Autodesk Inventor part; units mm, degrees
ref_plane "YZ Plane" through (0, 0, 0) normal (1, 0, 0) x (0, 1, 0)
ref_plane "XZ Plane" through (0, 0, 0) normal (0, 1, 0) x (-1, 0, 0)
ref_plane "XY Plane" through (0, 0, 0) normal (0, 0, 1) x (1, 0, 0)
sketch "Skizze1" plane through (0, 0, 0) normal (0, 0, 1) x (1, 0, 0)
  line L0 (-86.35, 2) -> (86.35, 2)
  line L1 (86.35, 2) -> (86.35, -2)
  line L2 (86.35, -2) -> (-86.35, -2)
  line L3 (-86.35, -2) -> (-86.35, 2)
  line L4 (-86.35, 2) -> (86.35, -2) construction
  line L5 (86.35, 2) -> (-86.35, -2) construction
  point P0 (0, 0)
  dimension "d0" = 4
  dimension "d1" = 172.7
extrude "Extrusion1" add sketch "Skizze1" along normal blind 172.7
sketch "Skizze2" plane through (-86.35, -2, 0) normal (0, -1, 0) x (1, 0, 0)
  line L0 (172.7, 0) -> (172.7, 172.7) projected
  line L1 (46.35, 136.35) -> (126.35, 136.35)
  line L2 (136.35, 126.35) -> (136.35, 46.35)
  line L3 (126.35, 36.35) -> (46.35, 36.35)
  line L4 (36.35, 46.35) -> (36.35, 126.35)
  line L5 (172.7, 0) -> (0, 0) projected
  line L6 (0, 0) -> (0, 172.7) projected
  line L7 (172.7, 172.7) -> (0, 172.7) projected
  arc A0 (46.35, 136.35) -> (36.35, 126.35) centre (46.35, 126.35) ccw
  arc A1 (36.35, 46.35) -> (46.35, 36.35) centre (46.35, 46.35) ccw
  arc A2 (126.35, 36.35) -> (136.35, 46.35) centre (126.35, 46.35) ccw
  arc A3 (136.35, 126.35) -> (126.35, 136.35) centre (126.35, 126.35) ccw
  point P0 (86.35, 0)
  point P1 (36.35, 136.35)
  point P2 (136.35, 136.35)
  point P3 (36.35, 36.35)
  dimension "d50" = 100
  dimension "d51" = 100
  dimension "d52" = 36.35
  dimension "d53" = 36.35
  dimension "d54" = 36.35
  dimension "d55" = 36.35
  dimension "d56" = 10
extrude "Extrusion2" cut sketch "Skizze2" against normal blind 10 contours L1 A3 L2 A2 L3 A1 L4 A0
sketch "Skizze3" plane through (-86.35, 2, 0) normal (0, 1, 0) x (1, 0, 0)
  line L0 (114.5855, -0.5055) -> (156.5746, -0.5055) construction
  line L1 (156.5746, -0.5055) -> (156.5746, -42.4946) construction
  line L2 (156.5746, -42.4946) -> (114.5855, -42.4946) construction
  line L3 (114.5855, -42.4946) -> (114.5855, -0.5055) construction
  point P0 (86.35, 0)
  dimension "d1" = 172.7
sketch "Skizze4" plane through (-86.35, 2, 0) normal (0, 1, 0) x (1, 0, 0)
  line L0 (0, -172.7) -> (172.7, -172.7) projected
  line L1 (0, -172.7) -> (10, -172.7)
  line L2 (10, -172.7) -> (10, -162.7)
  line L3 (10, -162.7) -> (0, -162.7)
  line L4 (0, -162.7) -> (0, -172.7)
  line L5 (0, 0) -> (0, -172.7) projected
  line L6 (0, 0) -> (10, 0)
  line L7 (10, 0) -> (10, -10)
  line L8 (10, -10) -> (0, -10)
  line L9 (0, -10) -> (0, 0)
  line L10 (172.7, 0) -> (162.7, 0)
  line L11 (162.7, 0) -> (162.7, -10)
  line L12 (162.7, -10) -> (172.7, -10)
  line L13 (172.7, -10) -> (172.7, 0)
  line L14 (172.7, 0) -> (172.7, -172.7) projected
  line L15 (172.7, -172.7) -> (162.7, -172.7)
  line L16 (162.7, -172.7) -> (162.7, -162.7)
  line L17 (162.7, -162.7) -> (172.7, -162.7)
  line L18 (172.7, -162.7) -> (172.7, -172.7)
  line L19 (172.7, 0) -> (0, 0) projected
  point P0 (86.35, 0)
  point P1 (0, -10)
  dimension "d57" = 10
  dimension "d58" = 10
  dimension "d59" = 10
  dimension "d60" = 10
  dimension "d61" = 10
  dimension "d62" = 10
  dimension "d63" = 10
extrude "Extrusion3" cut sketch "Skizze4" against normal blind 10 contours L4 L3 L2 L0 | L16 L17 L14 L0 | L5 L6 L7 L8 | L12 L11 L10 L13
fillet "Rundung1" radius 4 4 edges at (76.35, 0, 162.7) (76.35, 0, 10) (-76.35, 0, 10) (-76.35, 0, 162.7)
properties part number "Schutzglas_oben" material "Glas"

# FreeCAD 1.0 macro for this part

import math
import FreeCAD as App
import Part
import Sketcher


def edges_at(feature, points):
    """Names of the edges that pass closest to the given points."""
    edges = feature.Shape.Edges
    near = lambda p: min(range(len(edges)), key=lambda i: edges[i].distToShape(Part.Vertex(*p))[0])
    return sorted({f"Edge{near(p) + 1}" for p in points})

doc = App.newDocument("Part")
body = doc.addObject("PartDesign::Body", "Body")

sketch1 = doc.addObject("Sketcher::SketchObject", "Sketch")
body.addObject(sketch1)
sketch1.AttachmentSupport = (doc.XY_Plane, [""])
sketch1.MapMode = "FlatFace"
sketch1.addGeometry([
    Part.LineSegment(App.Vector(86.35, 2, 0), App.Vector(-86.35, 2, 0)),
    Part.LineSegment(App.Vector(-86.35, 2, 0), App.Vector(-86.35, -2, 0)),
    Part.LineSegment(App.Vector(-86.35, -2, 0), App.Vector(86.35, -2, 0)),
    Part.LineSegment(App.Vector(86.35, -2, 0), App.Vector(86.35, 2, 0)),
], False)
sketch1.addConstraint([
    Sketcher.Constraint("Coincident", 0, 2, 1, 1),
    Sketcher.Constraint("Coincident", 1, 2, 2, 1),
    Sketcher.Constraint("Coincident", 2, 2, 3, 1),
    Sketcher.Constraint("Coincident", 3, 2, 0, 1),
    Sketcher.Constraint("Horizontal", 0),
    Sketcher.Constraint("Vertical", 1),
    Sketcher.Constraint("Horizontal", 2),
    Sketcher.Constraint("Vertical", 3),
    Sketcher.Constraint("Symmetric", 0, 2, 2, 2, -1, 1),
    Sketcher.Constraint("DistanceY", 1, 2, 1, 1, 4.0),
    Sketcher.Constraint("DistanceX", 0, 2, 0, 1, 172.7),
])
pad1 = doc.addObject("PartDesign::Pad", "Pad")
body.addObject(pad1)
pad1.Profile = sketch1
pad1.Length = 172.7

sketch2 = doc.addObject("Sketcher::SketchObject", "Sketch001")
body.addObject(sketch2)
sketch2.AttachmentSupport = (doc.XZ_Plane, [""])
sketch2.MapMode = "FlatFace"
sketch2.AttachmentOffset = App.Placement(App.Vector(0, 0, 2), App.Rotation())
sketch2.addGeometry([
    Part.LineSegment(App.Vector(40, 136.35, 0), App.Vector(-40, 136.35, 0)),
    Part.ArcOfCircle(Part.Circle(App.Vector(-40, 126.35, 0), App.Vector(0, 0, 1), 10), math.radians(90), math.radians(180)),
    Part.LineSegment(App.Vector(-50, 126.35, 0), App.Vector(-50, 46.35, 0)),
    Part.ArcOfCircle(Part.Circle(App.Vector(-40, 46.35, 0), App.Vector(0, 0, 1), 10), math.radians(180), math.radians(270)),
    Part.LineSegment(App.Vector(-40, 36.35, 0), App.Vector(40, 36.35, 0)),
    Part.ArcOfCircle(Part.Circle(App.Vector(40, 46.35, 0), App.Vector(0, 0, 1), 10), math.radians(-90), math.radians(0)),
    Part.LineSegment(App.Vector(50, 46.35, 0), App.Vector(50, 126.35, 0)),
    Part.ArcOfCircle(Part.Circle(App.Vector(40, 126.35, 0), App.Vector(0, 0, 1), 10), math.radians(0), math.radians(90)),
], False)
sketch2.addConstraint([
    Sketcher.Constraint("Tangent", 0, 2, 1, 1),
    Sketcher.Constraint("Tangent", 1, 2, 2, 1),
    Sketcher.Constraint("Tangent", 2, 2, 3, 1),
    Sketcher.Constraint("Tangent", 3, 2, 4, 1),
    Sketcher.Constraint("Tangent", 4, 2, 5, 1),
    Sketcher.Constraint("Tangent", 5, 2, 6, 1),
    Sketcher.Constraint("Tangent", 6, 2, 7, 1),
    Sketcher.Constraint("Tangent", 7, 2, 0, 1),
    Sketcher.Constraint("Horizontal", 0),
    Sketcher.Constraint("Vertical", 2),
    Sketcher.Constraint("Horizontal", 4),
    Sketcher.Constraint("Vertical", 6),
    Sketcher.Constraint("Equal", 1, 3),
    Sketcher.Constraint("Equal", 3, 5),
    Sketcher.Constraint("Equal", 5, 7),
    Sketcher.Constraint("Equal", 4, 2),
    Sketcher.Constraint("Radius", 1, 10.0),
    Sketcher.Constraint("DistanceX", 0, 2, 0, 1, 80.0),
    Sketcher.Constraint("DistanceY", -1, 1, 3, 2, 36.35),
    Sketcher.Constraint("DistanceX", 1, 3, -1, 1, 40.0),
])
pocket1 = doc.addObject("PartDesign::Pocket", "Pocket")
body.addObject(pocket1)
pocket1.Profile = sketch2
pocket1.Length = 10

sketch3 = doc.addObject("Sketcher::SketchObject", "Sketch002")
body.addObject(sketch3)
sketch3.AttachmentSupport = (doc.XZ_Plane, [""])
sketch3.MapMode = "FlatFace"
sketch3.AttachmentOffset = App.Placement(App.Vector(0, 0, -2), App.Rotation())
sketch3.addGeometry([
    Part.LineSegment(App.Vector(-86.35, 162.7, 0), App.Vector(-86.35, 172.7, 0)),
    Part.LineSegment(App.Vector(-86.35, 172.7, 0), App.Vector(-76.35, 172.7, 0)),
    Part.LineSegment(App.Vector(-76.35, 172.7, 0), App.Vector(-76.35, 162.7, 0)),
    Part.LineSegment(App.Vector(-76.35, 162.7, 0), App.Vector(-86.35, 162.7, 0)),
    Part.LineSegment(App.Vector(76.35, 162.7, 0), App.Vector(76.35, 172.7, 0)),
    Part.LineSegment(App.Vector(76.35, 172.7, 0), App.Vector(86.35, 172.7, 0)),
    Part.LineSegment(App.Vector(86.35, 172.7, 0), App.Vector(86.35, 162.7, 0)),
    Part.LineSegment(App.Vector(86.35, 162.7, 0), App.Vector(76.35, 162.7, 0)),
    Part.LineSegment(App.Vector(-86.35, 0, 0), App.Vector(-86.35, 10, 0)),
    Part.LineSegment(App.Vector(-86.35, 10, 0), App.Vector(-76.35, 10, 0)),
    Part.LineSegment(App.Vector(-76.35, 10, 0), App.Vector(-76.35, 0, 0)),
    Part.LineSegment(App.Vector(-76.35, 0, 0), App.Vector(-86.35, 0, 0)),
    Part.LineSegment(App.Vector(76.35, 10, 0), App.Vector(86.35, 10, 0)),
    Part.LineSegment(App.Vector(86.35, 10, 0), App.Vector(86.35, 0, 0)),
    Part.LineSegment(App.Vector(86.35, 0, 0), App.Vector(76.35, 0, 0)),
    Part.LineSegment(App.Vector(76.35, 0, 0), App.Vector(76.35, 10, 0)),
], False)
sketch3.addConstraint([
    Sketcher.Constraint("Coincident", 0, 2, 1, 1),
    Sketcher.Constraint("Coincident", 1, 2, 2, 1),
    Sketcher.Constraint("Coincident", 2, 2, 3, 1),
    Sketcher.Constraint("Coincident", 3, 2, 0, 1),
    Sketcher.Constraint("Coincident", 4, 2, 5, 1),
    Sketcher.Constraint("Coincident", 5, 2, 6, 1),
    Sketcher.Constraint("Coincident", 6, 2, 7, 1),
    Sketcher.Constraint("Coincident", 7, 2, 4, 1),
    Sketcher.Constraint("Coincident", 8, 2, 9, 1),
    Sketcher.Constraint("Coincident", 9, 2, 10, 1),
    Sketcher.Constraint("Coincident", 10, 2, 11, 1),
    Sketcher.Constraint("Coincident", 11, 2, 8, 1),
    Sketcher.Constraint("Coincident", 12, 2, 13, 1),
    Sketcher.Constraint("Coincident", 13, 2, 14, 1),
    Sketcher.Constraint("Coincident", 14, 2, 15, 1),
    Sketcher.Constraint("Coincident", 15, 2, 12, 1),
    Sketcher.Constraint("Vertical", 0),
    Sketcher.Constraint("Horizontal", 1),
    Sketcher.Constraint("Vertical", 2),
    Sketcher.Constraint("Horizontal", 3),
    Sketcher.Constraint("Vertical", 4),
    Sketcher.Constraint("Horizontal", 5),
    Sketcher.Constraint("Vertical", 6),
    Sketcher.Constraint("Horizontal", 7),
    Sketcher.Constraint("Vertical", 8),
    Sketcher.Constraint("Horizontal", 9),
    Sketcher.Constraint("Vertical", 10),
    Sketcher.Constraint("Horizontal", 11),
    Sketcher.Constraint("Horizontal", 12),
    Sketcher.Constraint("Vertical", 13),
    Sketcher.Constraint("Horizontal", 14),
    Sketcher.Constraint("Vertical", 15),
    Sketcher.Constraint("Symmetric", 11, 2, 13, 2, -1, 1),
    Sketcher.Constraint("Symmetric", 1, 2, 4, 2, -2),
    Sketcher.Constraint("Symmetric", 3, 2, 6, 2, -2),
    Sketcher.Constraint("Symmetric", 10, 2, 14, 2, -2),
    Sketcher.Constraint("Horizontal", 9, 2, 12, 2),
    Sketcher.Constraint("Vertical", 3, 2, 8, 2),
    Sketcher.Constraint("Vertical", 2, 2, 9, 2),
    Sketcher.Constraint("Equal", 14, 0),
    Sketcher.Constraint("Equal", 6, 8),
    Sketcher.Constraint("DistanceX", 1, 1, 1, 2, 10.0),
    Sketcher.Constraint("DistanceY", -1, 1, 0, 2, 172.7),
    Sketcher.Constraint("DistanceX", 1, 2, 4, 2, 152.7),
])
pocket2 = doc.addObject("PartDesign::Pocket", "Pocket001")
body.addObject(pocket2)
pocket2.Profile = sketch3
pocket2.Length = 10
pocket2.Reversed = True
doc.recompute()

fillet = doc.addObject("PartDesign::Fillet", "Fillet")
body.addObject(fillet)
fillet.Base = (pocket2, edges_at(pocket2, [
    (76.35, 0, 162.7),
    (76.35, 0, 10),
    (-76.35, 0, 10),
    (-76.35, 0, 162.7),
]))
fillet.Radius = 4

doc.recompute()
